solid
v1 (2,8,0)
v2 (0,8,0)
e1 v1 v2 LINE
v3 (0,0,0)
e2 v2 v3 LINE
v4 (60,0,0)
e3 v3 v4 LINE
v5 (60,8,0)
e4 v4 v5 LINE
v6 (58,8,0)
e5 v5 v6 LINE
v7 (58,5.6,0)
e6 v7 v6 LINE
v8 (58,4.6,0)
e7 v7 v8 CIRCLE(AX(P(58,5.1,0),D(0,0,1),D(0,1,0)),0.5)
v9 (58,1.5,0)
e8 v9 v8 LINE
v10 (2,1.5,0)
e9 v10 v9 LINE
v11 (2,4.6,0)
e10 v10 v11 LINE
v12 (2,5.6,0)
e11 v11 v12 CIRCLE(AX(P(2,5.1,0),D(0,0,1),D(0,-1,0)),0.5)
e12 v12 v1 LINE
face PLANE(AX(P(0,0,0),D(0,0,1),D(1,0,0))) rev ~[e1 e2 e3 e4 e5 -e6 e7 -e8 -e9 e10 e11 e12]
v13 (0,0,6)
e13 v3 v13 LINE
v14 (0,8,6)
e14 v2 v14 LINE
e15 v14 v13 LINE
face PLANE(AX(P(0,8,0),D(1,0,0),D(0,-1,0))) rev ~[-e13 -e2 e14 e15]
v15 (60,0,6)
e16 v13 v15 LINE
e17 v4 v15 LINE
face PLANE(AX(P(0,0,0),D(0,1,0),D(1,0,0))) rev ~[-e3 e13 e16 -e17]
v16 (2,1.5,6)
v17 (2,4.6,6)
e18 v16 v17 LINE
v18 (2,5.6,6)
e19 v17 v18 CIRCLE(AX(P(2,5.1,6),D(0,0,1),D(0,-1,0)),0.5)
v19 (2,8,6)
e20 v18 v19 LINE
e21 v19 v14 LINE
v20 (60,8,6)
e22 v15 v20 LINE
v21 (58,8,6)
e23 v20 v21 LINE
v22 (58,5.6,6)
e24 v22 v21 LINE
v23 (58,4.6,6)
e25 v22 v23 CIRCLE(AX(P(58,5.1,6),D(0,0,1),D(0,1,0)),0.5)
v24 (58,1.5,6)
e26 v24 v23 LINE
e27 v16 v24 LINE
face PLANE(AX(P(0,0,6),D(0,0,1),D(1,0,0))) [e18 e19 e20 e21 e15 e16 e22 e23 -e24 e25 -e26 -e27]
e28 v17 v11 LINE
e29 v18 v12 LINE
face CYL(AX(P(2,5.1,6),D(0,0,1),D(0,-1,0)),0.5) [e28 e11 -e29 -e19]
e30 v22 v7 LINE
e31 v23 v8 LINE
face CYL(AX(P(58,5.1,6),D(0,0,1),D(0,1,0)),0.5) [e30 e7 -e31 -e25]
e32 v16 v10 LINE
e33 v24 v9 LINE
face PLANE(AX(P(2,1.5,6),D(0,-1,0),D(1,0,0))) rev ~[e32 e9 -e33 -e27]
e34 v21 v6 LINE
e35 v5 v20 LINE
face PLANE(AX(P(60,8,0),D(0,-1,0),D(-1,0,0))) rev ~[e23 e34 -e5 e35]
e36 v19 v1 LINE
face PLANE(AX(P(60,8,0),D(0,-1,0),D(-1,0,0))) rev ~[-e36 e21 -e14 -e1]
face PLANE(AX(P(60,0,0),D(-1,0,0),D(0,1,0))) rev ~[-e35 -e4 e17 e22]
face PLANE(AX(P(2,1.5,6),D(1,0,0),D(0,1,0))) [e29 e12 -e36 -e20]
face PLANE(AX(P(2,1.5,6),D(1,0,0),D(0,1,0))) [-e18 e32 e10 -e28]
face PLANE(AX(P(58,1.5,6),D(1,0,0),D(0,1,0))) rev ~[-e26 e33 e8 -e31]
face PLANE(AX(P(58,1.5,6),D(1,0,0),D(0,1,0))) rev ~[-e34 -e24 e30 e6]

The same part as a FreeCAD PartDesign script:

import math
import FreeCAD as App
import Part
import Sketcher

V = App.Vector
Q = App.Units.Quantity

doc = App.newDocument("Part")
body = doc.addObject("PartDesign::Body", "Body")

sketch1 = body.newObject("Sketcher::SketchObject", "Sketch")
sketch1.AttachmentSupport = (doc.getObject("XY_Plane"), [""])
sketch1.MapMode = "FlatFace"
sketch1.addGeometry([
    Part.LineSegment(V(0, 8, 0), V(0, 0, 0)),
    Part.LineSegment(V(0, 0, 0), V(60, 0, 0)),
    Part.LineSegment(V(60, 0, 0), V(60, 8, 0)),
    Part.LineSegment(V(60, 8, 0), V(0, 8, 0)),
], False)
sketch1.addConstraint([
    Sketcher.Constraint("Coincident", 0, 2, 1, 1),
    Sketcher.Constraint("Coincident", 1, 2, 2, 1),
    Sketcher.Constraint("Coincident", 2, 2, 3, 1),
    Sketcher.Constraint("Coincident", 3, 2, 0, 1),
    Sketcher.Constraint("Vertical", 0),
    Sketcher.Constraint("Horizontal", 1),
    Sketcher.Constraint("Vertical", 2),
    Sketcher.Constraint("Horizontal", 3),
    Sketcher.Constraint("Coincident", 0, 2, -1, 1),
    Sketcher.Constraint("DistanceX", 1, 1, 1, 2, Q("60 mm")),
    Sketcher.Constraint("DistanceY", 0, 2, 0, 1, Q("8 mm")),
])
pad1 = body.newObject("PartDesign::Pad", "Pad")
pad1.Profile = sketch1
pad1.Length = 6

sketch2 = body.newObject("Sketcher::SketchObject", "Sketch001")
sketch2.AttachmentSupport = (doc.getObject("XY_Plane"), [""])
sketch2.MapMode = "FlatFace"
sketch2.AttachmentOffset = App.Placement(V(0, 0, 6), App.Rotation())
sketch2.addGeometry([
    Part.LineSegment(V(2, 8, 0), V(2, 2, 0)),
    Part.LineSegment(V(2, 2, 0), V(58, 2, 0)),
    Part.LineSegment(V(58, 2, 0), V(58, 8, 0)),
    Part.LineSegment(V(58, 8, 0), V(2, 8, 0)),
], False)
sketch2.addConstraint([
    Sketcher.Constraint("Coincident", 0, 2, 1, 1),
    Sketcher.Constraint("Coincident", 1, 2, 2, 1),
    Sketcher.Constraint("Coincident", 2, 2, 3, 1),
    Sketcher.Constraint("Coincident", 3, 2, 0, 1),
    Sketcher.Constraint("Vertical", 0),
    Sketcher.Constraint("Horizontal", 1),
    Sketcher.Constraint("Vertical", 2),
    Sketcher.Constraint("Horizontal", 3),
    Sketcher.Constraint("DistanceX", 1, 1, 1, 2, Q("56 mm")),
    Sketcher.Constraint("DistanceX", -1, 1, 0, 2, Q("2 mm")),
    Sketcher.Constraint("DistanceY", -1, 1, 0, 2, Q("1.5 mm")),
    Sketcher.Constraint("DistanceY", 0, 2, 0, 1, Q("6.5 mm")),
])
pocket1 = body.newObject("PartDesign::Pocket", "Pocket")
pocket1.Profile = sketch2
pocket1.Length = 20

sketch3 = body.newObject("Sketcher::SketchObject", "Sketch002")
sketch3.AttachmentSupport = (doc.getObject("XY_Plane"), [""])
sketch3.MapMode = "FlatFace"
sketch3.AttachmentOffset = App.Placement(V(0, 0, 6), App.Rotation())
sketch3.addGeometry([
    Part.LineSegment(V(2, 5.6, 0), V(2, 4.6, 0)),
    Part.ArcOfCircle(Part.Circle(V(2, 5.1, 0), V(0, 0, 1), 0.5), math.radians(-90), math.radians(90)),
    Part.ArcOfCircle(Part.Circle(V(58, 5.1, 0), V(0, 0, 1), 0.5), math.radians(90), math.radians(270)),
    Part.LineSegment(V(58, 4.6, 0), V(58, 5.6, 0)),
], False)
sketch3.addConstraint([
    Sketcher.Constraint("Coincident", 0, 1, 1, 2),
    Sketcher.Constraint("Coincident", 1, 1, 0, 2),
    Sketcher.Constraint("Coincident", 2, 1, 3, 2),
    Sketcher.Constraint("Coincident", 3, 1, 2, 2),
    Sketcher.Constraint("Vertical", 0),
    Sketcher.Constraint("Vertical", 3),
    Sketcher.Constraint("Equal", 1, 2),
    Sketcher.Constraint("Horizontal", 1, 3, 2, 3),
    Sketcher.Constraint("Vertical", 1, 3, 0, 1),
    Sketcher.Constraint("Radius", 1, Q("0.5 mm")),
    Sketcher.Constraint("DistanceY", -1, 1, 1, 3, Q("5.1 mm")),
    Sketcher.Constraint("DistanceX", -1, 1, 1, 3, Q("2 mm")),
    Sketcher.Constraint("DistanceX", -1, 1, 2, 3, Q("58 mm")),
    Sketcher.Constraint("DistanceX", -1, 1, 2, 1, Q("58 mm")),
])
pad2 = body.newObject("PartDesign::Pad", "Pad001")
pad2.Profile = sketch3
pad2.Length = 6
pad2.Reversed = True

doc.recompute()
